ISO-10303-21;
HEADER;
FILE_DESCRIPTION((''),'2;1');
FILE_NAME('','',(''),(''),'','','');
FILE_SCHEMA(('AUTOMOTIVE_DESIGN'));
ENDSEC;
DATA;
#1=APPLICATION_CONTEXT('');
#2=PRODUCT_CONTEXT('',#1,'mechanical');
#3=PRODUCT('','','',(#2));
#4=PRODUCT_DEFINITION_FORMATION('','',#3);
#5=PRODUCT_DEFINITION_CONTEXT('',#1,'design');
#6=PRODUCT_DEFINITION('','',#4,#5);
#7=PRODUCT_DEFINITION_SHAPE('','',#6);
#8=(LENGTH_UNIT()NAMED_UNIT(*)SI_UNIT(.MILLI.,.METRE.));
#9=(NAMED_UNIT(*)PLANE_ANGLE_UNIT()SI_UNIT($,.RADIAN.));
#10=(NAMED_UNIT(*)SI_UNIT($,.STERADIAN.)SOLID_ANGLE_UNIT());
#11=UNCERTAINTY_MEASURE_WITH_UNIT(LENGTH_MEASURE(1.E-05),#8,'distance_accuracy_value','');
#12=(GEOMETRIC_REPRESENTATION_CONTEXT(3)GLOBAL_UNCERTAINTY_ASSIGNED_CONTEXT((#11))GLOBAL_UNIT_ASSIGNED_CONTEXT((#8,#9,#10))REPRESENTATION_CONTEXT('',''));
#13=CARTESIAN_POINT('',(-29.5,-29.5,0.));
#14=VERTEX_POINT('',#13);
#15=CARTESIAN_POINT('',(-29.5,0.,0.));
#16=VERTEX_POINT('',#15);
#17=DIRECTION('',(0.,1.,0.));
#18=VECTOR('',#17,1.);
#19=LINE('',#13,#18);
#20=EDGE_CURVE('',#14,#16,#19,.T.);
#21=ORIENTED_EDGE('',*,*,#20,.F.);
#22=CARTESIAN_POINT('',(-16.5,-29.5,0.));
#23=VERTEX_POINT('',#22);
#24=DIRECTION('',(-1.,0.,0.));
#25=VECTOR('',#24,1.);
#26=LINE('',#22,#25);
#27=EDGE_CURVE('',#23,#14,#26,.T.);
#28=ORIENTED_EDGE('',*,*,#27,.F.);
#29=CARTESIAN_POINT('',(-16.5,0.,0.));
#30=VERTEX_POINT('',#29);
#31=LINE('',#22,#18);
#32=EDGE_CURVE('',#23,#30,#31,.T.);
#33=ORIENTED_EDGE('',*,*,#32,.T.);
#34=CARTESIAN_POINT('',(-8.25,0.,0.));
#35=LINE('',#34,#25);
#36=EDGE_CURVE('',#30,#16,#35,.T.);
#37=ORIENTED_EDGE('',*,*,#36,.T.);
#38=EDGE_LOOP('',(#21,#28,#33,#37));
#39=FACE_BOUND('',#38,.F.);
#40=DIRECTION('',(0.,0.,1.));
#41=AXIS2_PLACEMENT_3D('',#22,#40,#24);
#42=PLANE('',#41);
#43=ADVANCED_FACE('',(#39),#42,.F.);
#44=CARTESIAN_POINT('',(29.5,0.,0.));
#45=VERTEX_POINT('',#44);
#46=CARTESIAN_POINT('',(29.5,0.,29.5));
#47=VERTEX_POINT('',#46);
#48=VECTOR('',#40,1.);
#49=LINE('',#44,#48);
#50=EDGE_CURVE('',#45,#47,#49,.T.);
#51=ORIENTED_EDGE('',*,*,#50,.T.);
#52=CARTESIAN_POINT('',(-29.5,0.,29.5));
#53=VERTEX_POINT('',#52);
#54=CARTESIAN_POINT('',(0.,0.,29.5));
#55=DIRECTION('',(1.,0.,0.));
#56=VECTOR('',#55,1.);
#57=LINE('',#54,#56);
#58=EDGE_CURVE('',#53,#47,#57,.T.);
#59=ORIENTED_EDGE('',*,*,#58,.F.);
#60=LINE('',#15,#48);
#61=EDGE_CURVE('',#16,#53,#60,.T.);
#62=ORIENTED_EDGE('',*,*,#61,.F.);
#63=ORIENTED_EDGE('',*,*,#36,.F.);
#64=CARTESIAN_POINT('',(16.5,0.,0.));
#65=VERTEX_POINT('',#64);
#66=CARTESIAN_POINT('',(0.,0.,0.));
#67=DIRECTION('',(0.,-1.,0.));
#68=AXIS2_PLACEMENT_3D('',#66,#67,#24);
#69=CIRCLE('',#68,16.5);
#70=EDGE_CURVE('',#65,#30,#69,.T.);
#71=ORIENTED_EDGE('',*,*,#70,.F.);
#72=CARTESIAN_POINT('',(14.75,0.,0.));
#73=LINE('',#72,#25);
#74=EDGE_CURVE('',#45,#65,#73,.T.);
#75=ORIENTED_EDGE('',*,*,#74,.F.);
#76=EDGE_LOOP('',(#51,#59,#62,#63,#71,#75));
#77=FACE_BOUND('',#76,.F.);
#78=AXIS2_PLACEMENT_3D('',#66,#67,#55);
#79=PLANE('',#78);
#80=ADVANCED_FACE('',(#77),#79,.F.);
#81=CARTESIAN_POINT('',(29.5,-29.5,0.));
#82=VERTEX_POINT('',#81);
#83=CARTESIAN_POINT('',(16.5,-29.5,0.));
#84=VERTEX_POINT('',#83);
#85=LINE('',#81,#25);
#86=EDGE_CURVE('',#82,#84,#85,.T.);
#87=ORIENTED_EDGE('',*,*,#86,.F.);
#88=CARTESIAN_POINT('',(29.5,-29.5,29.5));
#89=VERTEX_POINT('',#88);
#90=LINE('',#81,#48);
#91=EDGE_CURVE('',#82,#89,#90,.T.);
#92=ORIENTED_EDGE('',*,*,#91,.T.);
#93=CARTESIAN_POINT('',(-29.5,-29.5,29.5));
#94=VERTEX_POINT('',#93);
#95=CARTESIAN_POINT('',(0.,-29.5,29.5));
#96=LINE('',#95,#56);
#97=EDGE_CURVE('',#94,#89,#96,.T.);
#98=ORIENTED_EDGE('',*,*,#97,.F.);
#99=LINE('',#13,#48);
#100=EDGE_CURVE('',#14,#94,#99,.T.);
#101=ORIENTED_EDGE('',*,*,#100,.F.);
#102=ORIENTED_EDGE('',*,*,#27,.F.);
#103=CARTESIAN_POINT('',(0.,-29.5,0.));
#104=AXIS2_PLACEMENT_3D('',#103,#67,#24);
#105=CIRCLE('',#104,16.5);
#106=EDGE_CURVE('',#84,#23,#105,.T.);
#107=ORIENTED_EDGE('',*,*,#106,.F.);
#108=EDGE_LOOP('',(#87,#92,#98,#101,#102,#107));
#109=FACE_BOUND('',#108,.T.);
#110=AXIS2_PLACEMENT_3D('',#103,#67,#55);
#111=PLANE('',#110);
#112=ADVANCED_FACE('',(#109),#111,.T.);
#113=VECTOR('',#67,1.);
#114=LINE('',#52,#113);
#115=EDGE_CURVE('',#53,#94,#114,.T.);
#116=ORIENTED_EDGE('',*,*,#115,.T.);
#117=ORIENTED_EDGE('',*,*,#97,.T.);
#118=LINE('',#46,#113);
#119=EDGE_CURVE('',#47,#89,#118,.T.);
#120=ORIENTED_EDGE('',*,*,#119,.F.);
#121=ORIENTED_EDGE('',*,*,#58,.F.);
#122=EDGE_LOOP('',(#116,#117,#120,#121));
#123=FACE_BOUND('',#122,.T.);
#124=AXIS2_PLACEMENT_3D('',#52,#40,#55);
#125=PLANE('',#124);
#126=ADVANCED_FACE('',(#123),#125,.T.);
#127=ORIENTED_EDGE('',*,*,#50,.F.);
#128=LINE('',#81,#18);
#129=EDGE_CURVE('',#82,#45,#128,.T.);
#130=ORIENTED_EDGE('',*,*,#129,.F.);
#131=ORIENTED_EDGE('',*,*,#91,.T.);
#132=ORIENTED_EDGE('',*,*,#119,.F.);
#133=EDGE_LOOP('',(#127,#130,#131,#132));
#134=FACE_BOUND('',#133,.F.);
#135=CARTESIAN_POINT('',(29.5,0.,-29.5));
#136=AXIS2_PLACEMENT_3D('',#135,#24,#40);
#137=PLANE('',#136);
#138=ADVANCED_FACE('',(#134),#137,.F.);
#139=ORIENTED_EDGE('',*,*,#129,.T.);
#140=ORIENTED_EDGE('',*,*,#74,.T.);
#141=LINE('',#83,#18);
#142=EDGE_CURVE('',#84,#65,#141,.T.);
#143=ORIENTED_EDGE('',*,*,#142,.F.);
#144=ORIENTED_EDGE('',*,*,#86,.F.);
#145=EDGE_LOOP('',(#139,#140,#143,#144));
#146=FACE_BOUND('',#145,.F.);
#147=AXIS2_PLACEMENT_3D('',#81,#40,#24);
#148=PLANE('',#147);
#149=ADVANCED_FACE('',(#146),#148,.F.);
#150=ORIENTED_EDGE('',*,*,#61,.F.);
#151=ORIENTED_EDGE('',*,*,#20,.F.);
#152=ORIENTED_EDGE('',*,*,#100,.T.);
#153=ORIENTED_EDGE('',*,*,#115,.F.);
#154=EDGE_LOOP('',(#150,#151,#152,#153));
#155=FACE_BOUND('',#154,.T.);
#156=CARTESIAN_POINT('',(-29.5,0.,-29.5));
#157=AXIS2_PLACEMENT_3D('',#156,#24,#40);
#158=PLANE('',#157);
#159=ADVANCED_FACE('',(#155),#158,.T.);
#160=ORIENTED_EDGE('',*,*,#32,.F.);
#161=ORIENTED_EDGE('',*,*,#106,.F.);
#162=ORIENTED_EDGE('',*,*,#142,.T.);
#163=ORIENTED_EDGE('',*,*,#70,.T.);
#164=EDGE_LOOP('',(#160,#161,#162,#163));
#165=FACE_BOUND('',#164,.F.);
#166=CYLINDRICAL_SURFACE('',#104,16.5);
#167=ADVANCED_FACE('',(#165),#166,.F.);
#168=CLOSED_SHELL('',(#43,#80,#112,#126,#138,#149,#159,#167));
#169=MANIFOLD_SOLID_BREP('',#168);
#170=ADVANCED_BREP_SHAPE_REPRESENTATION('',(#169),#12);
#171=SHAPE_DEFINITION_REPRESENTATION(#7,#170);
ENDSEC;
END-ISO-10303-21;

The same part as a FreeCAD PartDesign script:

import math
import FreeCAD as App
import Part
import Sketcher

doc = App.newDocument("Part")
body = doc.addObject("PartDesign::Body", "Body")

# Sketch on XZ plane
sketch1 = body.newObject("Sketcher::SketchObject", "Sketch")
sketch1.AttachmentSupport = (doc.getObject("XZ_Plane"), [""])
sketch1.MapMode = "FlatFace"
sketch1.addGeometry([
    Part.LineSegment(App.Vector(-29.5, 29.5, 0), App.Vector(-29.5, -29.5, 0)),
    Part.LineSegment(App.Vector(-29.5, -29.5, 0), App.Vector(29.5, -29.5, 0)),
    Part.LineSegment(App.Vector(29.5, -29.5, 0), App.Vector(29.5, 29.5, 0)),
    Part.LineSegment(App.Vector(29.5, 29.5, 0), App.Vector(-29.5, 29.5, 0)),
], False)
sketch1.addConstraint([
    Sketcher.Constraint("Coincident", 0, 2, 1, 1),
    Sketcher.Constraint("Coincident", 1, 2, 2, 1),
    Sketcher.Constraint("Coincident", 2, 2, 3, 1),
    Sketcher.Constraint("Coincident", 3, 2, 0, 1),
    Sketcher.Constraint("Vertical", 0),
    Sketcher.Constraint("Horizontal", 1),
    Sketcher.Constraint("Vertical", 2),
    Sketcher.Constraint("Horizontal", 3),
    Sketcher.Constraint("Symmetric", 0, 2, 2, 2, -1, 1),
    Sketcher.Constraint("Equal", 3, 0),
    Sketcher.Constraint("DistanceX", 1, 1, 1, 2, 59.0),
])
pad1 = body.newObject("PartDesign::Pad", "Pad")
pad1.Profile = sketch1
pad1.Length = 29.5

# Sketch on XZ plane
sketch2 = body.newObject("Sketcher::SketchObject", "Sketch001")
sketch2.AttachmentSupport = (doc.getObject("XZ_Plane"), [""])
sketch2.MapMode = "FlatFace"
sketch2.AttachmentOffset = App.Placement(App.Vector(0, 0, 29.5), App.Rotation())
sketch2.addGeometry(Part.Circle(App.Vector(0, 0, 0), App.Vector(0, 0, 1), 16.5), False)
sketch2.addConstraint([
    Sketcher.Constraint("Coincident", 0, 3, -1, 1),
    Sketcher.Constraint("Diameter", 0, 33.0),
])
pocket1 = body.newObject("PartDesign::Pocket", "Pocket")
pocket1.Profile = sketch2
pocket1.Type = "ThroughAll"

# Sketch on XZ plane
sketch3 = body.newObject("Sketcher::SketchObject", "Sketch002")
sketch3.AttachmentSupport = (doc.getObject("XZ_Plane"), [""])
sketch3.MapMode = "FlatFace"
sketch3.AttachmentOffset = App.Placement(App.Vector(0, 0, 29.5), App.Rotation())
sketch3.addGeometry([
    Part.ArcOfCircle(Part.Circle(App.Vector(0, 0, 0), App.Vector(0, 0, 1), 16.5), math.radians(0), math.radians(180)),  # 0
    Part.LineSegment(App.Vector(-16.5, 0, 0), App.Vector(-29.5, 0, 0)),  # 1
    Part.LineSegment(App.Vector(-29.5, 0, 0), App.Vector(-29.5, -29.5, 0)),  # 2
    Part.LineSegment(App.Vector(-29.5, -29.5, 0), App.Vector(29.5, -29.5, 0)),  # 3
    Part.LineSegment(App.Vector(29.5, -29.5, 0), App.Vector(29.5, 0, 0)),  # 4
    Part.LineSegment(App.Vector(29.5, 0, 0), App.Vector(16.5, 0, 0)),  # 5
], False)
sketch3.addConstraint([
    Sketcher.Constraint("Coincident", 0, 2, 1, 1),
    Sketcher.Constraint("Coincident", 1, 2, 2, 1),
    Sketcher.Constraint("Coincident", 2, 2, 3, 1),
    Sketcher.Constraint("Coincident", 3, 2, 4, 1),
    Sketcher.Constraint("Coincident", 4, 2, 5, 1),
    Sketcher.Constraint("Coincident", 5, 2, 0, 1),
    Sketcher.Constraint("Horizontal", 1),
    Sketcher.Constraint("Vertical", 2),
    Sketcher.Constraint("Horizontal", 3),
    Sketcher.Constraint("Vertical", 4),
    Sketcher.Constraint("Horizontal", 5),
    Sketcher.Constraint("Coincident", 0, 3, -1, 1),
    Sketcher.Constraint("Symmetric", 1, 2, 4, 2, -1, 1),
    Sketcher.Constraint("PointOnObject", 0, 2, -1),
    Sketcher.Constraint("Radius", 0, 16.5),
    Sketcher.Constraint("DistanceX", 1, 2, 1, 1, 13.0),
    Sketcher.Constraint("DistanceY", 2, 2, 2, 1, 29.5),
])
pocket2 = body.newObject("PartDesign::Pocket", "Pocket001")
pocket2.Profile = sketch3
pocket2.Type = "ThroughAll"

doc.recompute()
